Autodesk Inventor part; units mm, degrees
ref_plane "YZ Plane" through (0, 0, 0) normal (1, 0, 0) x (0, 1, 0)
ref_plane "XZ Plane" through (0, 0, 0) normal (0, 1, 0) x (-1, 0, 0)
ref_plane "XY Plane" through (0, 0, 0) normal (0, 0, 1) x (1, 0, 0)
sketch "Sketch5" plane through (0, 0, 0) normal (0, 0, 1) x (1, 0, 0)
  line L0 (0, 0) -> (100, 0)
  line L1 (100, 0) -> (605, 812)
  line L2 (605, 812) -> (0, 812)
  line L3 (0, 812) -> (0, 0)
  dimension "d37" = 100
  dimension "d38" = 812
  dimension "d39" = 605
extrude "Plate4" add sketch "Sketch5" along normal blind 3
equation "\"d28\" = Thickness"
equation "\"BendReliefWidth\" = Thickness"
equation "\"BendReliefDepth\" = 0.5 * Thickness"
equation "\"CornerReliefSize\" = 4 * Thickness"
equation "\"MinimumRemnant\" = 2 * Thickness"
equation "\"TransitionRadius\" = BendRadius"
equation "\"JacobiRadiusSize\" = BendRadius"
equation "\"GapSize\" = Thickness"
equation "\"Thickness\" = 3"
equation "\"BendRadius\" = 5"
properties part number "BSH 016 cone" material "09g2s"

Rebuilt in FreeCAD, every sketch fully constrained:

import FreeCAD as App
import Part
import Sketcher

V = App.Vector
Q = App.Units.Quantity

doc = App.newDocument("Part")
body = doc.addObject("PartDesign::Body", "Body")

# Sketch on XY plane
sketch1 = body.newObject("Sketcher::SketchObject", "Sketch")
sketch1.AttachmentSupport = (doc.getObject("XY_Plane"), [""])
sketch1.MapMode = "FlatFace"
sketch1.addGeometry(Part.LineSegment(V(0, 812, 0), V(0, 0, 0)), False)
sketch1.addGeometry(Part.LineSegment(V(0, 0, 0), V(100, 0, 0)), False)
sketch1.addGeometry(Part.LineSegment(V(100, 0, 0), V(605, 812, 0)), False)
sketch1.addGeometry(Part.LineSegment(V(605, 812, 0), V(0, 812, 0)), False)
sketch1.addConstraint(Sketcher.Constraint("Coincident", 0, 2, 1, 1))
sketch1.addConstraint(Sketcher.Constraint("Coincident", 1, 2, 2, 1))
sketch1.addConstraint(Sketcher.Constraint("Coincident", 2, 2, 3, 1))
sketch1.addConstraint(Sketcher.Constraint("Coincident", 3, 2, 0, 1))
sketch1.addConstraint(Sketcher.Constraint("Vertical", 0))
sketch1.addConstraint(Sketcher.Constraint("Horizontal", 1))
sketch1.addConstraint(Sketcher.Constraint("Horizontal", 3))
sketch1.addConstraint(Sketcher.Constraint("Coincident", 0, 2, -1, 1))
sketch1.addConstraint(Sketcher.Constraint("DistanceX", 1, 1, 1, 2, Q("3.937 in")))
sketch1.addConstraint(Sketcher.Constraint("DistanceX", 3, 2, 3, 1, Q("23.8189 in")))
sketch1.addConstraint(Sketcher.Constraint("DistanceY", 0, 2, 0, 1, Q("31.9685 in")))
pad1 = body.newObject("PartDesign::Pad", "Pad")
pad1.Profile = sketch1
pad1.Length = Q("0.1181102 in")

doc.recompute()
